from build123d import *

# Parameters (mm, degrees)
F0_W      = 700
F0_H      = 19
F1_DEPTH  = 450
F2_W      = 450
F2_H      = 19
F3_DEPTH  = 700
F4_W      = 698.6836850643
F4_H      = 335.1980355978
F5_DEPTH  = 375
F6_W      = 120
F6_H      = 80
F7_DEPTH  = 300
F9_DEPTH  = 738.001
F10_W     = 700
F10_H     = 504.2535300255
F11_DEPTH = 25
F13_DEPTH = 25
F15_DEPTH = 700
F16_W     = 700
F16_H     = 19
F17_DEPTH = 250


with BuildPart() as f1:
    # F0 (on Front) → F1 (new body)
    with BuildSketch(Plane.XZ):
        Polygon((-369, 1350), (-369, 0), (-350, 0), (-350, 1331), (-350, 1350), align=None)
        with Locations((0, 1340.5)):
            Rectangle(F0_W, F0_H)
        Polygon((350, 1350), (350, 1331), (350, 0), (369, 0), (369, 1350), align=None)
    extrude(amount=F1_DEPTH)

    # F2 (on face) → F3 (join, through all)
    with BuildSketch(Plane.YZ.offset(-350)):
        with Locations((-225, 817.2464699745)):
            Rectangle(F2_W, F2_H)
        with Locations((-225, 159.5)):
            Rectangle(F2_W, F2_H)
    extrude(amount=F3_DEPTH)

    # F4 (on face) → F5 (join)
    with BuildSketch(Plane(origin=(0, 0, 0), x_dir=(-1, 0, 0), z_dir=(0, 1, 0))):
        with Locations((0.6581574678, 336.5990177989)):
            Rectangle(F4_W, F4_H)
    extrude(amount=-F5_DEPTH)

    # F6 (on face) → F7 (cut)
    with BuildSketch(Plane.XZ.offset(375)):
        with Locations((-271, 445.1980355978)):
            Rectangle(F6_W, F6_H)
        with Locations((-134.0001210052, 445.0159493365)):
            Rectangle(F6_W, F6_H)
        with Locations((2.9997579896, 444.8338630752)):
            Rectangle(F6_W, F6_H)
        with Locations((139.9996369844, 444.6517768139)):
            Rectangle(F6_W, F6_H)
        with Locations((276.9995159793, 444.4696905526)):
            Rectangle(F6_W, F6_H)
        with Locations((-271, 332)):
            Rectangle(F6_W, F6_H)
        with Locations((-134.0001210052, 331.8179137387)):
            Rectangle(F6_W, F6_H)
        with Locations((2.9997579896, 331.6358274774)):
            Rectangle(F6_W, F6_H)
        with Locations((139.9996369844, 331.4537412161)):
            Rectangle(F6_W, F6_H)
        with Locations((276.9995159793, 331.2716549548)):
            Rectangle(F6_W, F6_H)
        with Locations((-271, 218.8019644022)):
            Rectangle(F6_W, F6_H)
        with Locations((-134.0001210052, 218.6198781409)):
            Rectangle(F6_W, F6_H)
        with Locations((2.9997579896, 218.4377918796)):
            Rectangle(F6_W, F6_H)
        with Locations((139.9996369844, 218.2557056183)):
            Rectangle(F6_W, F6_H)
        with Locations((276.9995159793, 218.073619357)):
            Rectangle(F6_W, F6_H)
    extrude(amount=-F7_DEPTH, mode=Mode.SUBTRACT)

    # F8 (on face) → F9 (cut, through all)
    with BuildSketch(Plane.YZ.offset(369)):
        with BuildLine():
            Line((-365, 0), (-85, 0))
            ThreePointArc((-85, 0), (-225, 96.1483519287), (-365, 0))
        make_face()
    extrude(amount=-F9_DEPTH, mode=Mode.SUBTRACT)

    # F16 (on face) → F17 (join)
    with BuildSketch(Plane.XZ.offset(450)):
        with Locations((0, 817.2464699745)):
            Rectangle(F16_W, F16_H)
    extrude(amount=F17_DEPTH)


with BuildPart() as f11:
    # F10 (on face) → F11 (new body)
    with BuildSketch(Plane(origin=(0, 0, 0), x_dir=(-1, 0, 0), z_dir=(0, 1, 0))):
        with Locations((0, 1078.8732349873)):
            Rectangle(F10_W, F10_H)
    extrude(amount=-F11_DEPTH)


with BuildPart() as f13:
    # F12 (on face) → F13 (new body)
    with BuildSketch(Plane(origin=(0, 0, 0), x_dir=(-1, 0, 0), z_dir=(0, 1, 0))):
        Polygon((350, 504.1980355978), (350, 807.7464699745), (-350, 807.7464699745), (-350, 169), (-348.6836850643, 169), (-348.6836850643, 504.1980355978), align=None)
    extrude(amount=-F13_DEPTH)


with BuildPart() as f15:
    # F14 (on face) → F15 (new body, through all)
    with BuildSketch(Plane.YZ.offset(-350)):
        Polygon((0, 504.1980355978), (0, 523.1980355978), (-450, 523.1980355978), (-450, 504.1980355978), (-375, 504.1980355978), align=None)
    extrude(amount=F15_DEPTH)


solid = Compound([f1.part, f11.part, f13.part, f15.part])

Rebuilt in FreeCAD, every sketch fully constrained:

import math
import FreeCAD as App
import Part
import Sketcher
Q = App.Units.Quantity


def add_polygon(sketch, points):
    """Adds a closed chain of lines whose ends are joined by coincident constraints."""
    first, n = sketch.GeometryCount, len(points)
    for a, b in zip(points, points[1:] + points[:1]):
        sketch.addGeometry(Part.LineSegment(App.Vector(*a, 0), App.Vector(*b, 0)), False)
    for i in range(n):
        sketch.addConstraint(Sketcher.Constraint("Coincident", first + i, 2, first + (i + 1) % n, 1))

doc = App.newDocument("Part")
body = doc.addObject("PartDesign::Body", "Body")

# Sketch on XZ plane
sketch1 = body.newObject("Sketcher::SketchObject", "Sketch")
sketch1.AttachmentSupport = (doc.getObject("XZ_Plane"), [""])
sketch1.MapMode = "FlatFace"
add_polygon(sketch1, [(-369, 1350), (-369, 0), (-350, 0), (-350, 1331), (350, 1331), (350, 0), (369, 0), (369, 1350)])  # lines 0-7
sketch1.addConstraint([
    Sketcher.Constraint("Vertical", 0),
    Sketcher.Constraint("Horizontal", 1),
    Sketcher.Constraint("Vertical", 2),
    Sketcher.Constraint("Horizontal", 3),
    Sketcher.Constraint("Vertical", 4),
    Sketcher.Constraint("Horizontal", 5),
    Sketcher.Constraint("Vertical", 6),
    Sketcher.Constraint("Horizontal", 7),
    Sketcher.Constraint("Symmetric", 1, 2, 4, 2, -1, 1),
    Sketcher.Constraint("Symmetric", 0, 2, 5, 2, -2),
    Sketcher.Constraint("DistanceX", 1, 1, 1, 2, Q("19 mm")),
    Sketcher.Constraint("DistanceX", 3, 1, 3, 2, Q("700 mm")),
    Sketcher.Constraint("DistanceY", 0, 2, 0, 1, Q("1350 mm")),
    Sketcher.Constraint("DistanceY", 2, 1, 2, 2, Q("1331 mm")),
])
pad1 = body.newObject("PartDesign::Pad", "Pad")
pad1.Profile = sketch1
pad1.Length = 450

# Sketch on YZ plane
sketch2 = body.newObject("Sketcher::SketchObject", "Sketch001")
sketch2.AttachmentSupport = (doc.getObject("YZ_Plane"), [""])
sketch2.MapMode = "FlatFace"
sketch2.AttachmentOffset = App.Placement(App.Vector(0, 0, -350), App.Rotation())
add_polygon(sketch2, [(-450, 827), (-450, 808), (0, 808), (0, 827)])  # lines 0-3
add_polygon(sketch2, [(-450, 169), (-450, 150), (0, 150), (0, 169)])  # lines 4-7
sketch2.addConstraint([
    Sketcher.Constraint("Vertical", 0),
    Sketcher.Constraint("Horizontal", 1),
    Sketcher.Constraint("Vertical", 2),
    Sketcher.Constraint("Horizontal", 3),
    Sketcher.Constraint("Vertical", 4),
    Sketcher.Constraint("Horizontal", 5),
    Sketcher.Constraint("Vertical", 6),
    Sketcher.Constraint("Horizontal", 7),
    Sketcher.Constraint("PointOnObject", 1, 2, -2),
    Sketcher.Constraint("PointOnObject", 5, 2, -2),
    Sketcher.Constraint("Vertical", 3, 2, 4, 2),
    Sketcher.Constraint("Equal", 2, 4),
    Sketcher.Constraint("DistanceX", 1, 1, 1, 2, Q("450 mm")),
    Sketcher.Constraint("DistanceY", 0, 2, 0, 1, Q("19 mm")),
    Sketcher.Constraint("DistanceY", -1, 1, 4, 2, Q("150 mm")),
    Sketcher.Constraint("DistanceY", -1, 1, 0, 2, Q("807.74647 mm")),
])
pad2 = body.newObject("PartDesign::Pad", "Pad001")
pad2.Profile = sketch2
pad2.Type = "UpToLast"

# Sketch on XZ plane
sketch3 = body.newObject("Sketcher::SketchObject", "Sketch002")
sketch3.AttachmentSupport = (doc.getObject("XZ_Plane"), [""])
sketch3.MapMode = "FlatFace"
add_polygon(sketch3, [(349, 504), (349, 169), (-350, 169), (-350, 504)])  # lines 0-3
sketch3.addConstraint([
    Sketcher.Constraint("Vertical", 0),
    Sketcher.Constraint("Horizontal", 1),
    Sketcher.Constraint("Vertical", 2),
    Sketcher.Constraint("Horizontal", 3),
    Sketcher.Constraint("DistanceY", -1, 1, 0, 2, Q("169 mm")),
    Sketcher.Constraint("DistanceX", 1, 2, -1, 1, Q("350 mm")),
    Sketcher.Constraint("DistanceX", 1, 2, 1, 1, Q("698.683685 mm")),
    Sketcher.Constraint("DistanceY", 0, 2, 0, 1, Q("335.198036 mm")),
])
pad3 = body.newObject("PartDesign::Pad", "Pad002")
pad3.Profile = sketch3
pad3.Length = 375

# Sketch on XZ plane
sketch4 = body.newObject("Sketcher::SketchObject", "Sketch003")
sketch4.AttachmentSupport = (doc.getObject("XZ_Plane"), [""])
sketch4.MapMode = "FlatFace"
sketch4.AttachmentOffset = App.Placement(App.Vector(0, 0, 375), App.Rotation())
add_polygon(sketch4, [(-331, 485), (-331, 405), (-211, 405), (-211, 485)])  # lines 0-3
add_polygon(sketch4, [(-194, 485), (-194, 405), (-74, 405), (-74, 485)])  # lines 4-7
add_polygon(sketch4, [(-57, 485), (-57, 405), (63, 405), (63, 485)])  # lines 8-11
add_polygon(sketch4, [(80, 485), (80, 405), (200, 405), (200, 485)])  # lines 12-15
add_polygon(sketch4, [(217, 484), (217, 404), (337, 404), (337, 484)])  # lines 16-19
add_polygon(sketch4, [(-331, 372), (-331, 292), (-211, 292), (-211, 372)])  # lines 20-23
add_polygon(sketch4, [(-194, 372), (-194, 292), (-74, 292), (-74, 372)])  # lines 24-27
add_polygon(sketch4, [(-57, 372), (-57, 292), (63, 292), (63, 372)])  # lines 28-31
add_polygon(sketch4, [(80, 371), (80, 291), (200, 291), (200, 371)])  # lines 32-35
add_polygon(sketch4, [(217, 371), (217, 291), (337, 291), (337, 371)])  # lines 36-39
add_polygon(sketch4, [(-331, 259), (-331, 179), (-211, 179), (-211, 259)])  # lines 40-43
add_polygon(sketch4, [(-194, 259), (-194, 179), (-74, 179), (-74, 259)])  # lines 44-47
add_polygon(sketch4, [(-57, 258), (-57, 178), (63, 178), (63, 258)])  # lines 48-51
add_polygon(sketch4, [(80, 258), (80, 178), (200, 178), (200, 258)])  # lines 52-55
add_polygon(sketch4, [(217, 258), (217, 178), (337, 178), (337, 258)])  # lines 56-59
sketch4.addConstraint([
    Sketcher.Constraint("Vertical", 0),
    Sketcher.Constraint("Horizontal", 1),
    Sketcher.Constraint("Vertical", 2),
    Sketcher.Constraint("Horizontal", 3),
    Sketcher.Constraint("Vertical", 4),
    Sketcher.Constraint("Horizontal", 5),
    Sketcher.Constraint("Vertical", 6),
    Sketcher.Constraint("Horizontal", 7),
    Sketcher.Constraint("Vertical", 8),
    Sketcher.Constraint("Horizontal", 9),
    Sketcher.Constraint("Vertical", 10),
    Sketcher.Constraint("Horizontal", 11),
    Sketcher.Constraint("Vertical", 12),
    Sketcher.Constraint("Horizontal", 13),
    Sketcher.Constraint("Vertical", 14),
    Sketcher.Constraint("Horizontal", 15),
    Sketcher.Constraint("Vertical", 16),
    Sketcher.Constraint("Horizontal", 17),
    Sketcher.Constraint("Vertical", 18),
    Sketcher.Constraint("Horizontal", 19),
    Sketcher.Constraint("Vertical", 20),
    Sketcher.Constraint("Horizontal", 21),
    Sketcher.Constraint("Vertical", 22),
    Sketcher.Constraint("Horizontal", 23),
    Sketcher.Constraint("Vertical", 24),
    Sketcher.Constraint("Horizontal", 25),
    Sketcher.Constraint("Vertical", 26),
    Sketcher.Constraint("Horizontal", 27),
    Sketcher.Constraint("Vertical", 28),
    Sketcher.Constraint("Horizontal", 29),
    Sketcher.Constraint("Vertical", 30),
    Sketcher.Constraint("Horizontal", 31),
    Sketcher.Constraint("Vertical", 32),
    Sketcher.Constraint("Horizontal", 33),
    Sketcher.Constraint("Vertical", 34),
    Sketcher.Constraint("Horizontal", 35),
    Sketcher.Constraint("Vertical", 36),
    Sketcher.Constraint("Horizontal", 37),
    Sketcher.Constraint("Vertical", 38),
    Sketcher.Constraint("Horizontal", 39),
    Sketcher.Constraint("Vertical", 40),
    Sketcher.Constraint("Horizontal", 41),
    Sketcher.Constraint("Vertical", 42),
    Sketcher.Constraint("Horizontal", 43),
    Sketcher.Constraint("Vertical", 44),
    Sketcher.Constraint("Horizontal", 45),
    Sketcher.Constraint("Vertical", 46),
    Sketcher.Constraint("Horizontal", 47),
    Sketcher.Constraint("Vertical", 48),
    Sketcher.Constraint("Horizontal", 49),
    Sketcher.Constraint("Vertical", 50),
    Sketcher.Constraint("Horizontal", 51),
    Sketcher.Constraint("Vertical", 52),
    Sketcher.Constraint("Horizontal", 53),
    Sketcher.Constraint("Vertical", 54),
    Sketcher.Constraint("Horizontal", 55),
    Sketcher.Constraint("Vertical", 56),
    Sketcher.Constraint("Horizontal", 57),
    Sketcher.Constraint("Vertical", 58),
    Sketcher.Constraint("Horizontal", 59),
    Sketcher.Constraint("Vertical", 3, 2, 20, 2),
    Sketcher.Constraint("Vertical", 2, 2, 21, 2),
    Sketcher.Constraint("Vertical", 7, 2, 24, 2),
    Sketcher.Constraint("Vertical", 6, 2, 25, 2),
    Sketcher.Constraint("Vertical", 11, 2, 28, 2),
    Sketcher.Constraint("Vertical", 10, 2, 29, 2),
    Sketcher.Constraint("Vertical", 15, 2, 32, 2),
    Sketcher.Constraint("Vertical", 14, 2, 33, 2),
    Sketcher.Constraint("Vertical", 19, 2, 36, 2),
    Sketcher.Constraint("Vertical", 18, 2, 37, 2),
    Sketcher.Constraint("Vertical", 23, 2, 40, 2),
    Sketcher.Constraint("Vertical", 22, 2, 41, 2),
    Sketcher.Constraint("Vertical", 27, 2, 44, 2),
    Sketcher.Constraint("Vertical", 26, 2, 45, 2),
    Sketcher.Constraint("Vertical", 31, 2, 48, 2),
    Sketcher.Constraint("Vertical", 30, 2, 49, 2),
    Sketcher.Constraint("Vertical", 35, 2, 52, 2),
    Sketcher.Constraint("Vertical", 34, 2, 53, 2),
    Sketcher.Constraint("Vertical", 39, 2, 56, 2),
    Sketcher.Constraint("Vertical", 38, 2, 57, 2),
    Sketcher.Constraint("Equal", 3, 5),
    Sketcher.Constraint("Equal", 7, 9),
    Sketcher.Constraint("Equal", 11, 13),
    Sketcher.Constraint("Equal", 15, 17),
    Sketcher.Constraint("Equal", 2, 4),
    Sketcher.Constraint("Equal", 6, 8),
    Sketcher.Constraint("Equal", 10, 12),
    Sketcher.Constraint("Equal", 14, 16),
    Sketcher.Constraint("Equal", 18, 20),
    Sketcher.Constraint("Equal", 22, 24),
    Sketcher.Constraint("Equal", 26, 28),
    Sketcher.Constraint("Equal", 30, 32),
    Sketcher.Constraint("Equal", 34, 36),
    Sketcher.Constraint("Equal", 38, 40),
    Sketcher.Constraint("Equal", 42, 44),
    Sketcher.Constraint("Equal", 46, 48),
    Sketcher.Constraint("Equal", 50, 52),
    Sketcher.Constraint("Equal", 54, 56),
    Sketcher.Constraint("DistanceX", 1, 1, 1, 2, Q("120 mm")),
    Sketcher.Constraint("DistanceY", 0, 2, 0, 1, Q("80 mm")),
    Sketcher.Constraint("DistanceX", 0, 2, -1, 1, Q("331 mm")),
    Sketcher.Constraint("DistanceY", -1, 1, 20, 2, Q("292 mm")),
    Sketcher.Constraint("DistanceX", 4, 2, -1, 1, Q("194.000121 mm")),
    Sketcher.Constraint("DistanceY", -1, 1, 4, 2, Q("405.015949 mm")),
    Sketcher.Constraint("DistanceY", -1, 1, 16, 2, Q("404.469691 mm")),
    Sketcher.Constraint("DistanceY", -1, 1, 32, 2, Q("291.453741 mm")),
    Sketcher.Constraint("DistanceY", -1, 1, 44, 2, Q("178.619878 mm")),
    Sketcher.Constraint("DistanceY", -1, 1, 48, 2, Q("178.437792 mm")),
    Sketcher.Constraint("DistanceY", -1, 1, 56, 2, Q("178.073619 mm")),
    Sketcher.Constraint("DistanceX", 5, 2, 8, 2, Q("16.999879 mm")),
    Sketcher.Constraint("DistanceX", 9, 2, 12, 2, Q("16.999879 mm")),
    Sketcher.Constraint("DistanceX", 13, 2, 16, 2, Q("16.999879 mm")),
    Sketcher.Constraint("DistanceY", 24, 2, 1, 2, Q("113.380122 mm")),
    Sketcher.Constraint("DistanceY", 25, 2, 8, 2, Q("113.015949 mm")),
    Sketcher.Constraint("DistanceY", 28, 2, 5, 2, Q("113.380122 mm")),
    Sketcher.Constraint("DistanceY", 29, 2, 12, 2, Q("113.015949 mm")),
    Sketcher.Constraint("DistanceY", 32, 2, 9, 2, Q("113.380122 mm")),
    Sketcher.Constraint("DistanceY", 36, 2, 13, 2, Q("113.380122 mm")),
    Sketcher.Constraint("DistanceY", 40, 2, 24, 2, Q("113.015949 mm")),
    Sketcher.Constraint("DistanceY", 52, 2, 29, 2, Q("113.380122 mm")),
])
pocket1 = body.newObject("PartDesign::Pocket", "Pocket")
pocket1.Profile = sketch4
pocket1.Length = 300

# Sketch on YZ plane
sketch5 = body.newObject("Sketcher::SketchObject", "Sketch004")
sketch5.AttachmentSupport = (doc.getObject("YZ_Plane"), [""])
sketch5.MapMode = "FlatFace"
sketch5.AttachmentOffset = App.Placement(App.Vector(0, 0, 369), App.Rotation())
sketch5.addGeometry([
    Part.LineSegment(App.Vector(-365, 0, 0), App.Vector(-85, 0, 0)),
    Part.ArcOfCircle(Part.Circle(App.Vector(-225, -54, 0), App.Vector(0, 0, 1), 150), math.radians(21), math.radians(159)),
], False)
sketch5.addConstraint([
    Sketcher.Constraint("Coincident", 0, 1, 1, 2),
    Sketcher.Constraint("Coincident", 1, 1, 0, 2),
    Sketcher.Constraint("Horizontal", 0),
    Sketcher.Constraint("PointOnObject", 0, 1, -1),
    Sketcher.Constraint("Radius", 1, Q("150 mm")),
    Sketcher.Constraint("DistanceX", 0, 1, 0, 2, Q("280 mm")),
    Sketcher.Constraint("DistanceX", 1, 3, -1, 1, Q("225 mm")),
])
pocket2 = body.newObject("PartDesign::Pocket", "Pocket001")
pocket2.Profile = sketch5
pocket2.Type = "ThroughAll"

# Sketch on XZ plane
sketch6 = body.newObject("Sketcher::SketchObject", "Sketch005")
sketch6.AttachmentSupport = (doc.getObject("XZ_Plane"), [""])
sketch6.MapMode = "FlatFace"
sketch6.AttachmentOffset = App.Placement(App.Vector(0, 0, 450), App.Rotation())
add_polygon(sketch6, [(-350, 827), (-350, 808), (350, 808), (350, 827)])  # lines 0-3
sketch6.addConstraint([
    Sketcher.Constraint("Vertical", 0),
    Sketcher.Constraint("Horizontal", 1),
    Sketcher.Constraint("Vertical", 2),
    Sketcher.Constraint("Horizontal", 3),
    Sketcher.Constraint("DistanceX", 1, 1, 1, 2, Q("700 mm")),
    Sketcher.Constraint("DistanceY", 0, 2, 0, 1, Q("19 mm")),
    Sketcher.Constraint("DistanceX", 0, 2, -1, 1, Q("350 mm")),
    Sketcher.Constraint("DistanceY", -1, 1, 0, 2, Q("807.74647 mm")),
])
pad4 = body.newObject("PartDesign::Pad", "Pad003")
pad4.Profile = sketch6
pad4.Length = 250
body2 = doc.addObject("PartDesign::Body", "Body001")

# Sketch on XZ plane
sketch7 = body2.newObject("Sketcher::SketchObject", "Sketch006")
sketch7.AttachmentSupport = (doc.getObject("XZ_Plane001"), [""])
sketch7.MapMode = "FlatFace"
add_polygon(sketch7, [(350, 1331), (350, 827), (-350, 827), (-350, 1331)])  # lines 0-3
sketch7.addConstraint([
    Sketcher.Constraint("Vertical", 0),
    Sketcher.Constraint("Horizontal", 1),
    Sketcher.Constraint("Vertical", 2),
    Sketcher.Constraint("Horizontal", 3),
    Sketcher.Constraint("DistanceX", 1, 2, 1, 1, Q("700 mm")),
    Sketcher.Constraint("DistanceX", -1, 1, 0, 2, Q("350 mm")),
    Sketcher.Constraint("DistanceY", -1, 1, 2, 2, Q("1331 mm")),
    Sketcher.Constraint("DistanceY", 0, 2, 0, 1, Q("504.25353 mm")),
])
pad5 = body2.newObject("PartDesign::Pad", "Pad004")
pad5.Profile = sketch7
pad5.Length = 25
body3 = doc.addObject("PartDesign::Body", "Body002")

# Sketch on XZ plane
sketch8 = body3.newObject("Sketcher::SketchObject", "Sketch007")
sketch8.AttachmentSupport = (doc.getObject("XZ_Plane002"), [""])
sketch8.MapMode = "FlatFace"
add_polygon(sketch8, [(-350, 504.2), (-350, 807.7), (350, 807.7), (350, 169), (348.7, 169), (348.7, 504.2)])  # lines 0-5
sketch8.addConstraint([
    Sketcher.Constraint("Vertical", 0),
    Sketcher.Constraint("Horizontal", 1),
    Sketcher.Constraint("Vertical", 2),
    Sketcher.Constraint("Horizontal", 3),
    Sketcher.Constraint("Vertical", 4),
    Sketcher.Constraint("Horizontal", 5),
    Sketcher.Constraint("DistanceX", 1, 1, 1, 2, Q("700 mm")),
    Sketcher.Constraint("DistanceX", 0, 2, -1, 1, Q("350 mm")),
    Sketcher.Constraint("DistanceY", -1, 1, 2, 2, Q("169 mm")),
    Sketcher.Constraint("DistanceY", 2, 2, 2, 1, Q("638.74647 mm")),
    Sketcher.Constraint("DistanceX", 3, 2, 3, 1, Q("1.316315 mm")),
    Sketcher.Constraint("DistanceY", 0, 1, 0, 2, Q("303.548434 mm")),
])
pad6 = body3.newObject("PartDesign::Pad", "Pad005")
pad6.Profile = sketch8
pad6.Length = 25
body4 = doc.addObject("PartDesign::Body", "Body003")

# Sketch on YZ plane
sketch9 = body4.newObject("Sketcher::SketchObject", "Sketch008")
sketch9.AttachmentSupport = (doc.getObject("YZ_Plane003"), [""])
sketch9.MapMode = "FlatFace"
sketch9.AttachmentOffset = App.Placement(App.Vector(0, 0, -350), App.Rotation())
add_polygon(sketch9, [(0, 504), (0, 523), (-450, 523), (-450, 504)])  # lines 0-3
sketch9.addConstraint([
    Sketcher.Constraint("Vertical", 0),
    Sketcher.Constraint("Horizontal", 1),
    Sketcher.Constraint("Vertical", 2),
    Sketcher.Constraint("Horizontal", 3),
    Sketcher.Constraint("PointOnObject", 0, 2, -2),
    Sketcher.Constraint("DistanceX", 1, 2, 1, 1, Q("450 mm")),
    Sketcher.Constraint("DistanceY", 0, 1, 0, 2, Q("19 mm")),
    Sketcher.Constraint("DistanceY", -1, 1, 0, 2, Q("523.198036 mm")),
])
pad7 = body4.newObject("PartDesign::Pad", "Pad006")
pad7.Profile = sketch9
pad7.Length = 700

doc.recompute()
